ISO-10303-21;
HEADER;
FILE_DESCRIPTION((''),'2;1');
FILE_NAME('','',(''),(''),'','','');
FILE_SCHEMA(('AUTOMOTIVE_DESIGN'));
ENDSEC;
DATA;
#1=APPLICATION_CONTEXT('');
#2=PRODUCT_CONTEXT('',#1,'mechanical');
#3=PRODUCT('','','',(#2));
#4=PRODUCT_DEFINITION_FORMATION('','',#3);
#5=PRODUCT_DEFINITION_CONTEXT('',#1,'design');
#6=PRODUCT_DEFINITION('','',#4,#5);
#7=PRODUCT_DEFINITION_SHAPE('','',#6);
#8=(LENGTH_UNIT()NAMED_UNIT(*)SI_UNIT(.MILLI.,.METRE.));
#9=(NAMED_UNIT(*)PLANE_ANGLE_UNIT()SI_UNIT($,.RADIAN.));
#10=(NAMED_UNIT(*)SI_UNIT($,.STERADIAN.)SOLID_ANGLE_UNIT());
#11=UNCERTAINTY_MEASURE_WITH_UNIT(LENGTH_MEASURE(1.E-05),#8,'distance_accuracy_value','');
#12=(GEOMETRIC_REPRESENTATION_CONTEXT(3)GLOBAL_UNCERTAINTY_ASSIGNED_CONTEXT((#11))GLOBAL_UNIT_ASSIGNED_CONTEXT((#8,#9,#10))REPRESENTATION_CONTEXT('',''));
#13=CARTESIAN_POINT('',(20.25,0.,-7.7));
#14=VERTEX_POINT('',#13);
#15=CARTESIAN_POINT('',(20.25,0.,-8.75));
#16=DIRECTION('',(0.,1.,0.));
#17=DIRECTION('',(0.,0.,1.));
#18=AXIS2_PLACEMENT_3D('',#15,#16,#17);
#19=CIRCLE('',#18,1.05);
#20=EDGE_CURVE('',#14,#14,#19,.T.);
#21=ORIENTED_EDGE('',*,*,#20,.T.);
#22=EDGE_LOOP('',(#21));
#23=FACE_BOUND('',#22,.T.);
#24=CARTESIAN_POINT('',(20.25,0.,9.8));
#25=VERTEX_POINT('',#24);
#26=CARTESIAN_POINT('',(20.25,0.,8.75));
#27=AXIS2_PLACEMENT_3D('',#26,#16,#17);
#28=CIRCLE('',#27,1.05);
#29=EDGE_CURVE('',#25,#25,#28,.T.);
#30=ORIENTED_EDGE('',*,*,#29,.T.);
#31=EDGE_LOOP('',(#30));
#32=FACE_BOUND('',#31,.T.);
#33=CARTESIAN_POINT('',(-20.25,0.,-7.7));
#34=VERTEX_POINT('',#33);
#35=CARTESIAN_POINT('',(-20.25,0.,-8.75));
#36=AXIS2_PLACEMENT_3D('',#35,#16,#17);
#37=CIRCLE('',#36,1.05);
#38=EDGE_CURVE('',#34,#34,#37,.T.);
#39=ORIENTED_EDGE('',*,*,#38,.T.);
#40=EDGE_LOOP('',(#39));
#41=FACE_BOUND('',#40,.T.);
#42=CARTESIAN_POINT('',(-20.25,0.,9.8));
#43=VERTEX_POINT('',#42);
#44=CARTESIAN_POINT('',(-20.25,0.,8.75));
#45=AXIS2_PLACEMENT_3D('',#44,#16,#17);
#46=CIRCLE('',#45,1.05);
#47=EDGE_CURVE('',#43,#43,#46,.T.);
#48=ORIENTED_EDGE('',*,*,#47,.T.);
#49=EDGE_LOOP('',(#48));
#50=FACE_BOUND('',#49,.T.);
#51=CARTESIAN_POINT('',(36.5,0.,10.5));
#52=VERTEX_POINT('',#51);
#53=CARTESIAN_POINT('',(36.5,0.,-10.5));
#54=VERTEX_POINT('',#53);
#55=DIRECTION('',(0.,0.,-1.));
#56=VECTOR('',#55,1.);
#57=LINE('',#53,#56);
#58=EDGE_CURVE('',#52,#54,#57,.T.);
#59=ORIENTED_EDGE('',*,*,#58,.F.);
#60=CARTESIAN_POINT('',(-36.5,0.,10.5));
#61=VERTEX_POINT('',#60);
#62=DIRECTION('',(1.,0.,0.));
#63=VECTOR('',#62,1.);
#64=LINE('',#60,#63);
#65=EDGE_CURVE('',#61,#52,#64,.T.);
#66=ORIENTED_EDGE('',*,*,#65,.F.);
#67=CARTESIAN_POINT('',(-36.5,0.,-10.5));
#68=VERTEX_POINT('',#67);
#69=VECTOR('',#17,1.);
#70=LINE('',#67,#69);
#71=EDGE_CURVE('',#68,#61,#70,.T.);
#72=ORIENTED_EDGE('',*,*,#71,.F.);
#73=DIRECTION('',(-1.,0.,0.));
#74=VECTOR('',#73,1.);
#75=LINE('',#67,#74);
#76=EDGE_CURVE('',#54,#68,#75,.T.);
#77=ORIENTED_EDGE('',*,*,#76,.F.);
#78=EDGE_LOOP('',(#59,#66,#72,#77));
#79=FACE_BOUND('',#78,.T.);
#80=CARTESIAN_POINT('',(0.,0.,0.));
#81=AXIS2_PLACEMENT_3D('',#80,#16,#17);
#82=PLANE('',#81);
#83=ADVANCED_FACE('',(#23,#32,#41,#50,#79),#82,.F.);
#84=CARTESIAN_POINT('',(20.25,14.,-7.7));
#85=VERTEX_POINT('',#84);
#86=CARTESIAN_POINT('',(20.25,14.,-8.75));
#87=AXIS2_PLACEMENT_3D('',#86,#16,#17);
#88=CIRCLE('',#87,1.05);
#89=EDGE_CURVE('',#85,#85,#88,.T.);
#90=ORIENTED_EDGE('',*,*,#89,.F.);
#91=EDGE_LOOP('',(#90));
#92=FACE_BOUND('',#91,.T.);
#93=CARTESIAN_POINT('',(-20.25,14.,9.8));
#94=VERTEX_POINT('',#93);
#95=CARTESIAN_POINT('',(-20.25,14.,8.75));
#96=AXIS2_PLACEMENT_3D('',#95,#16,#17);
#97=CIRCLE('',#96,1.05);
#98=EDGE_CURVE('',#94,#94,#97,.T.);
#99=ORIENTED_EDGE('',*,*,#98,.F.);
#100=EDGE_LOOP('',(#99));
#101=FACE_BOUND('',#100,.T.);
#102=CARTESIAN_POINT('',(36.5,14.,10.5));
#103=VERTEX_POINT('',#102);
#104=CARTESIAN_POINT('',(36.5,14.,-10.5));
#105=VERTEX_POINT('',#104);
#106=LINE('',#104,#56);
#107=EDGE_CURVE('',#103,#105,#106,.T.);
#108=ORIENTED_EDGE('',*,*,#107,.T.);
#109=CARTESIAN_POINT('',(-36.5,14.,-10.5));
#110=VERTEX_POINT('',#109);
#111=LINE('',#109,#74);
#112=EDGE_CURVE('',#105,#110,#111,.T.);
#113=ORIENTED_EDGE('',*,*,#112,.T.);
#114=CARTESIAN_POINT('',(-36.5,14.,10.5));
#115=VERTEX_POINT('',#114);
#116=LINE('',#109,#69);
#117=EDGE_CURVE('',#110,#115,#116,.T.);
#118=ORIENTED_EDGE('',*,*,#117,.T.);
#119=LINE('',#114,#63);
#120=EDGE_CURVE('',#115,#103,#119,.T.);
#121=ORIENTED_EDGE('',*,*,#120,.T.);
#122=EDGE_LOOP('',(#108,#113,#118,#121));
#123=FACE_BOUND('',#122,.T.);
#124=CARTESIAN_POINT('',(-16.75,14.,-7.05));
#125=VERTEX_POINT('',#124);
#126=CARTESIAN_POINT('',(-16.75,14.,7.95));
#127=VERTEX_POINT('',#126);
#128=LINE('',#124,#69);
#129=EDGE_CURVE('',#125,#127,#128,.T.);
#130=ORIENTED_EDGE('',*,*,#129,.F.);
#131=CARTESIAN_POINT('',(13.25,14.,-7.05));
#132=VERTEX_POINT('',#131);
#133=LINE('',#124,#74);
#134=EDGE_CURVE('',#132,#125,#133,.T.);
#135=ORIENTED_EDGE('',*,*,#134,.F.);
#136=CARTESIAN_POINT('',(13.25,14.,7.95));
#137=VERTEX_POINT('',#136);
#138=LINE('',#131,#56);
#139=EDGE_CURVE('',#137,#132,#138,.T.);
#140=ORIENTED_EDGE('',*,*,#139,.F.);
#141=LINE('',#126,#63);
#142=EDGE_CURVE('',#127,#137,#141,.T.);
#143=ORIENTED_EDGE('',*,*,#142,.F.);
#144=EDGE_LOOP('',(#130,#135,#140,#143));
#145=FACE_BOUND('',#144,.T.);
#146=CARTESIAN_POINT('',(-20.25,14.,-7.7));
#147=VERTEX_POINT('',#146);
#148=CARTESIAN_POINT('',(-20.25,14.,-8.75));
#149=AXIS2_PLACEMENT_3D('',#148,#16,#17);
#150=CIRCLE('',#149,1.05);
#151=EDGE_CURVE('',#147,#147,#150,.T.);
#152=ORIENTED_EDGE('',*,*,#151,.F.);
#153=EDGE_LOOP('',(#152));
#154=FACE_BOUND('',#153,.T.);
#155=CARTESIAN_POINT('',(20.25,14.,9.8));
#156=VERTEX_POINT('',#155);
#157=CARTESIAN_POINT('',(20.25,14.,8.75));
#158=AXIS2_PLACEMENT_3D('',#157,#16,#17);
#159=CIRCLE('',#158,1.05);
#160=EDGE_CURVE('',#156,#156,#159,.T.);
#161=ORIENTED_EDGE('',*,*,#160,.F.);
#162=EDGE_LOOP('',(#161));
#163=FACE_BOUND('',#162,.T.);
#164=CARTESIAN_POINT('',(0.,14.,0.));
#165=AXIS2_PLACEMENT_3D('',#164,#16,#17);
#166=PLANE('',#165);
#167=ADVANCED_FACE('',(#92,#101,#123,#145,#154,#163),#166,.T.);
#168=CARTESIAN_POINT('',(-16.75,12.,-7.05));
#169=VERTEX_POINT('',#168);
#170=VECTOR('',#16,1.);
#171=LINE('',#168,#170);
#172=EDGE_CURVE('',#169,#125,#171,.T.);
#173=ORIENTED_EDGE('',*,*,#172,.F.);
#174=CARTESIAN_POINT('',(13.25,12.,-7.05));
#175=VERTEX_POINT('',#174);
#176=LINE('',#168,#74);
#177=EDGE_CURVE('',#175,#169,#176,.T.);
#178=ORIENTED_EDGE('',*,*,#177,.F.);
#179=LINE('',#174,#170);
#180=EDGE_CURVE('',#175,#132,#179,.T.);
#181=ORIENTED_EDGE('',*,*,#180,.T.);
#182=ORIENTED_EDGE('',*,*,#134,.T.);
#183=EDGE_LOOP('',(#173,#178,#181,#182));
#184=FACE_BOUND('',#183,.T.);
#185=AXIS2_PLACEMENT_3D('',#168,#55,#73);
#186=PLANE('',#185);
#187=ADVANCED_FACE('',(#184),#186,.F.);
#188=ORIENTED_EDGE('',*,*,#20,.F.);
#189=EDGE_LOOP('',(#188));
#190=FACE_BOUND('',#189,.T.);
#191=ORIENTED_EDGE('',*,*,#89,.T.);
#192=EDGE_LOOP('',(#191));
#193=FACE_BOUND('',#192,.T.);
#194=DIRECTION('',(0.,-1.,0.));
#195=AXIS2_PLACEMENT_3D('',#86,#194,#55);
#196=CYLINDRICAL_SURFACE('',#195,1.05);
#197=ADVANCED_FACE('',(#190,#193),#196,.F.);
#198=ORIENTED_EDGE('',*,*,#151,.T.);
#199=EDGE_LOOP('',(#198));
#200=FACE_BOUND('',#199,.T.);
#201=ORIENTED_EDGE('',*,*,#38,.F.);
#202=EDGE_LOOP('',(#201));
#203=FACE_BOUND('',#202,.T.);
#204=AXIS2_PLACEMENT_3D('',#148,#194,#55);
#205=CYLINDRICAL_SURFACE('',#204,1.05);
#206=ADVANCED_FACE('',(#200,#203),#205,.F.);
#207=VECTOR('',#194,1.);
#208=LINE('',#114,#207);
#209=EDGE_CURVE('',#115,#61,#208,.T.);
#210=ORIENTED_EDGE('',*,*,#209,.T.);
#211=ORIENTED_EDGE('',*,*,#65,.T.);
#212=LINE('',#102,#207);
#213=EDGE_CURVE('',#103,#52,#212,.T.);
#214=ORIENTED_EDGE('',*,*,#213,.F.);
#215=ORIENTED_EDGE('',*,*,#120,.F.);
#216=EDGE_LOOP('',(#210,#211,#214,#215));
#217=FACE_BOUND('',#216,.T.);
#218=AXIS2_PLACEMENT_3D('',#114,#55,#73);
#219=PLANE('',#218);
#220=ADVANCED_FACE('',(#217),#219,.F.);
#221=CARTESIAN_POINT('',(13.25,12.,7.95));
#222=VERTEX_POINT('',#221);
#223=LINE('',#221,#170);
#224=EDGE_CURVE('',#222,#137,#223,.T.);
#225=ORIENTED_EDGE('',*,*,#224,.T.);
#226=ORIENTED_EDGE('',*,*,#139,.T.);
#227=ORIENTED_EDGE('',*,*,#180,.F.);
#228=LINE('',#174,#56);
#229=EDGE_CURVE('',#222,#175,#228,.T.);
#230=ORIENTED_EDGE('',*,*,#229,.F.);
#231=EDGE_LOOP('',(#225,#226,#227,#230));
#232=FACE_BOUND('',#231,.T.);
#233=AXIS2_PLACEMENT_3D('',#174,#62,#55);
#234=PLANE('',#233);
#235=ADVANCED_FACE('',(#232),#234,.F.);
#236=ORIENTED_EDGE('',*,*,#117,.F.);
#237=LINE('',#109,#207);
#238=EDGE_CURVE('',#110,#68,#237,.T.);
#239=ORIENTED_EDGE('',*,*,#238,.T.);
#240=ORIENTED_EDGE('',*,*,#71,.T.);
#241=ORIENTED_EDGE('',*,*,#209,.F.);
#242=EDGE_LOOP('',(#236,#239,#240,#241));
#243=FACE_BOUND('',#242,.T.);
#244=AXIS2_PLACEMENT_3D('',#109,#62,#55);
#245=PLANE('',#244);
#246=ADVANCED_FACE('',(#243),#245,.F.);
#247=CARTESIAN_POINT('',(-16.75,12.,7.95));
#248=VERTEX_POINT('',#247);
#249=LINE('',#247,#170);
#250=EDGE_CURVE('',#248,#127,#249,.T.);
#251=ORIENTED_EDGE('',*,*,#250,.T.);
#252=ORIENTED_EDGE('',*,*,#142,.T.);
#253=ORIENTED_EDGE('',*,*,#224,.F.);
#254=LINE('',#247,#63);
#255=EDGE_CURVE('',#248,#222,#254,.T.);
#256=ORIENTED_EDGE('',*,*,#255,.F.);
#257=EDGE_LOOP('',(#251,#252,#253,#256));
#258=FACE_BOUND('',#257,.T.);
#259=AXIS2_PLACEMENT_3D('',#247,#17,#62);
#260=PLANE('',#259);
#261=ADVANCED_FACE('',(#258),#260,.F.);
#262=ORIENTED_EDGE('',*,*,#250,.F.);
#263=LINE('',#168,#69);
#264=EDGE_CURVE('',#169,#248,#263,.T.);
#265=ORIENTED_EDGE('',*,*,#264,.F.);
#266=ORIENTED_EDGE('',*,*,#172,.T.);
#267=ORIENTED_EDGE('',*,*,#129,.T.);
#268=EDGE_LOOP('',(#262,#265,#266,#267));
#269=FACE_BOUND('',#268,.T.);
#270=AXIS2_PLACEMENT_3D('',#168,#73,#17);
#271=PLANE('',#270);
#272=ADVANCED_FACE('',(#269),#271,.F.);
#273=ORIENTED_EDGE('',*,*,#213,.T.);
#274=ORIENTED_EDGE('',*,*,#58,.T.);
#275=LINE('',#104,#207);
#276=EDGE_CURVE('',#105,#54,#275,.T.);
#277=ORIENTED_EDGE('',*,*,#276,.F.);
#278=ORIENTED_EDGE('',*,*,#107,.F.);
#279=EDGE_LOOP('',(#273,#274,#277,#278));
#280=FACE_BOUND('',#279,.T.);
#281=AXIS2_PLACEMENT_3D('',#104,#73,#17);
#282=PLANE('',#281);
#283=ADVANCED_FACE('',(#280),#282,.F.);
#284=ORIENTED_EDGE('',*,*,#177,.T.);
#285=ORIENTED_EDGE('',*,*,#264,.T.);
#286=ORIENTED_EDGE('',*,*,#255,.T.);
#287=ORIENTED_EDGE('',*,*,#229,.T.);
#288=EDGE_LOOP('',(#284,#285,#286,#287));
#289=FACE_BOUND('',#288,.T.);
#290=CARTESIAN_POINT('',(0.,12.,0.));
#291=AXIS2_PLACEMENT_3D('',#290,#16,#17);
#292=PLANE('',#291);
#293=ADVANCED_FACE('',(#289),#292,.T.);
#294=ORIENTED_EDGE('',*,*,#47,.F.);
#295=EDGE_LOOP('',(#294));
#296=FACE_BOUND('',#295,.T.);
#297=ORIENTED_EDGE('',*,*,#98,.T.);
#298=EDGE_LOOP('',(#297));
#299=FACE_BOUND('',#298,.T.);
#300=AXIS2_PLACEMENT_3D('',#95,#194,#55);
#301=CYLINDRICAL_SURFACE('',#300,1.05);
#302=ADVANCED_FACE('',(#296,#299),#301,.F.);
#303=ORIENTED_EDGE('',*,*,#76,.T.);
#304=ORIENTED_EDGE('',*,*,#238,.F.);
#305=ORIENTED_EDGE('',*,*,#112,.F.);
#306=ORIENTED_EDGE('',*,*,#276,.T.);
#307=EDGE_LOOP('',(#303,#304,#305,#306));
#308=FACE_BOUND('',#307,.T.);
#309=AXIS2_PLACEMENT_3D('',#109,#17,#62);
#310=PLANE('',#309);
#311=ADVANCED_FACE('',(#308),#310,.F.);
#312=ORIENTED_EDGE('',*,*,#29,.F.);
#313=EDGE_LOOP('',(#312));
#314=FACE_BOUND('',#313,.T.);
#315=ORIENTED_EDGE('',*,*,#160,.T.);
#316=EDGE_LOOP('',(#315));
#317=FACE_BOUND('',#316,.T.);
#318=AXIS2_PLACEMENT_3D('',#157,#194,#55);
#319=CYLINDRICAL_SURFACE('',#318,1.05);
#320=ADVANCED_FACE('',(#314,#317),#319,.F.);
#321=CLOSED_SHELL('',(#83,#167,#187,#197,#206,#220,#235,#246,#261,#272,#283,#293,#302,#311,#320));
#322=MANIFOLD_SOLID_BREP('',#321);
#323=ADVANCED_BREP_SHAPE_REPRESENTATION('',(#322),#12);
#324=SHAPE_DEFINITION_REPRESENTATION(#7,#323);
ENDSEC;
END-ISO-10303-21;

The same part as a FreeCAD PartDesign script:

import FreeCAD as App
import Part
import Sketcher
from FreeCAD import Vector


def add_polygon(sketch, points):
    """Adds a closed chain of lines whose ends are joined by coincident constraints."""
    first, n = sketch.GeometryCount, len(points)
    for a, b in zip(points, points[1:] + points[:1]):
        sketch.addGeometry(Part.LineSegment(App.Vector(*a, 0), App.Vector(*b, 0)), False)
    for i in range(n):
        sketch.addConstraint(Sketcher.Constraint("Coincident", first + i, 2, first + (i + 1) % n, 1))

doc = App.newDocument("Part")
body = doc.addObject("PartDesign::Body", "Body")

# Sketch on XZ plane
sketch1 = body.newObject("Sketcher::SketchObject", "Sketch")
sketch1.AttachmentSupport = (doc.getObject("XZ_Plane"), [""])
sketch1.MapMode = "FlatFace"
add_polygon(sketch1, [(-36.5, -10.5), (-36.5, 10.5), (36.5, 10.5), (36.5, -10.5)])  # lines 0-3
sketch1.addGeometry(Part.Circle(Vector(-20.2, 8.8, 0), Vector(0, 0, 1), 1.1), False)  # 4
sketch1.addGeometry(Part.Circle(Vector(20.2, 8.8, 0), Vector(0, 0, 1), 1.1), False)  # 5
sketch1.addGeometry(Part.Circle(Vector(-20.2, -8.8, 0), Vector(0, 0, 1), 1.1), False)  # 6
sketch1.addGeometry(Part.Circle(Vector(20.2, -8.8, 0), Vector(0, 0, 1), 1.1), False)  # 7
sketch1.addConstraint([
    Sketcher.Constraint("Vertical", 0),
    Sketcher.Constraint("Horizontal", 1),
    Sketcher.Constraint("Vertical", 2),
    Sketcher.Constraint("Horizontal", 3),
    Sketcher.Constraint("Equal", 4, 5),
    Sketcher.Constraint("Equal", 5, 6),
    Sketcher.Constraint("Equal", 6, 7),
    Sketcher.Constraint("Symmetric", 5, 3, 6, 3, -1, 1),
    Sketcher.Constraint("Symmetric", 4, 3, 7, 3, -1, 1),
    Sketcher.Constraint("Symmetric", 0, 2, 2, 2, -1, 1),
    Sketcher.Constraint("Symmetric", 4, 3, 5, 3, -2),
    Sketcher.Constraint("Diameter", 4, 2.1),
    Sketcher.Constraint("DistanceX", 1, 1, 1, 2, 73.0),
    Sketcher.Constraint("DistanceY", 0, 1, 0, 2, 21.0),
    Sketcher.Constraint("DistanceX", 4, 3, 5, 3, 40.5),
    Sketcher.Constraint("DistanceY", 6, 3, 4, 3, 17.5),
])
pad1 = body.newObject("PartDesign::Pad", "Pad")
pad1.Profile = sketch1
pad1.Length = 14
pad1.Reversed = True

# Sketch on XZ plane
sketch2 = body.newObject("Sketcher::SketchObject", "Sketch001")
sketch2.AttachmentSupport = (doc.getObject("XZ_Plane"), [""])
sketch2.MapMode = "FlatFace"
sketch2.AttachmentOffset = App.Placement(Vector(0, 0, -14), App.Rotation())
add_polygon(sketch2, [(-17, -7), (-17, 8), (13, 8), (13, -7)])  # lines 0-3
sketch2.addConstraint([
    Sketcher.Constraint("Vertical", 0),
    Sketcher.Constraint("Horizontal", 1),
    Sketcher.Constraint("Vertical", 2),
    Sketcher.Constraint("Horizontal", 3),
    Sketcher.Constraint("DistanceX", 1, 1, 1, 2, 30.0),
    Sketcher.Constraint("DistanceY", 0, 1, 0, 2, 15.0),
    Sketcher.Constraint("DistanceX", 0, 2, -1, 1, 16.75),
    Sketcher.Constraint("DistanceY", -1, 1, 0, 2, 7.95),
])
pocket1 = body.newObject("PartDesign::Pocket", "Pocket")
pocket1.Profile = sketch2
pocket1.Length = 2
pocket1.Reversed = True

doc.recompute()
